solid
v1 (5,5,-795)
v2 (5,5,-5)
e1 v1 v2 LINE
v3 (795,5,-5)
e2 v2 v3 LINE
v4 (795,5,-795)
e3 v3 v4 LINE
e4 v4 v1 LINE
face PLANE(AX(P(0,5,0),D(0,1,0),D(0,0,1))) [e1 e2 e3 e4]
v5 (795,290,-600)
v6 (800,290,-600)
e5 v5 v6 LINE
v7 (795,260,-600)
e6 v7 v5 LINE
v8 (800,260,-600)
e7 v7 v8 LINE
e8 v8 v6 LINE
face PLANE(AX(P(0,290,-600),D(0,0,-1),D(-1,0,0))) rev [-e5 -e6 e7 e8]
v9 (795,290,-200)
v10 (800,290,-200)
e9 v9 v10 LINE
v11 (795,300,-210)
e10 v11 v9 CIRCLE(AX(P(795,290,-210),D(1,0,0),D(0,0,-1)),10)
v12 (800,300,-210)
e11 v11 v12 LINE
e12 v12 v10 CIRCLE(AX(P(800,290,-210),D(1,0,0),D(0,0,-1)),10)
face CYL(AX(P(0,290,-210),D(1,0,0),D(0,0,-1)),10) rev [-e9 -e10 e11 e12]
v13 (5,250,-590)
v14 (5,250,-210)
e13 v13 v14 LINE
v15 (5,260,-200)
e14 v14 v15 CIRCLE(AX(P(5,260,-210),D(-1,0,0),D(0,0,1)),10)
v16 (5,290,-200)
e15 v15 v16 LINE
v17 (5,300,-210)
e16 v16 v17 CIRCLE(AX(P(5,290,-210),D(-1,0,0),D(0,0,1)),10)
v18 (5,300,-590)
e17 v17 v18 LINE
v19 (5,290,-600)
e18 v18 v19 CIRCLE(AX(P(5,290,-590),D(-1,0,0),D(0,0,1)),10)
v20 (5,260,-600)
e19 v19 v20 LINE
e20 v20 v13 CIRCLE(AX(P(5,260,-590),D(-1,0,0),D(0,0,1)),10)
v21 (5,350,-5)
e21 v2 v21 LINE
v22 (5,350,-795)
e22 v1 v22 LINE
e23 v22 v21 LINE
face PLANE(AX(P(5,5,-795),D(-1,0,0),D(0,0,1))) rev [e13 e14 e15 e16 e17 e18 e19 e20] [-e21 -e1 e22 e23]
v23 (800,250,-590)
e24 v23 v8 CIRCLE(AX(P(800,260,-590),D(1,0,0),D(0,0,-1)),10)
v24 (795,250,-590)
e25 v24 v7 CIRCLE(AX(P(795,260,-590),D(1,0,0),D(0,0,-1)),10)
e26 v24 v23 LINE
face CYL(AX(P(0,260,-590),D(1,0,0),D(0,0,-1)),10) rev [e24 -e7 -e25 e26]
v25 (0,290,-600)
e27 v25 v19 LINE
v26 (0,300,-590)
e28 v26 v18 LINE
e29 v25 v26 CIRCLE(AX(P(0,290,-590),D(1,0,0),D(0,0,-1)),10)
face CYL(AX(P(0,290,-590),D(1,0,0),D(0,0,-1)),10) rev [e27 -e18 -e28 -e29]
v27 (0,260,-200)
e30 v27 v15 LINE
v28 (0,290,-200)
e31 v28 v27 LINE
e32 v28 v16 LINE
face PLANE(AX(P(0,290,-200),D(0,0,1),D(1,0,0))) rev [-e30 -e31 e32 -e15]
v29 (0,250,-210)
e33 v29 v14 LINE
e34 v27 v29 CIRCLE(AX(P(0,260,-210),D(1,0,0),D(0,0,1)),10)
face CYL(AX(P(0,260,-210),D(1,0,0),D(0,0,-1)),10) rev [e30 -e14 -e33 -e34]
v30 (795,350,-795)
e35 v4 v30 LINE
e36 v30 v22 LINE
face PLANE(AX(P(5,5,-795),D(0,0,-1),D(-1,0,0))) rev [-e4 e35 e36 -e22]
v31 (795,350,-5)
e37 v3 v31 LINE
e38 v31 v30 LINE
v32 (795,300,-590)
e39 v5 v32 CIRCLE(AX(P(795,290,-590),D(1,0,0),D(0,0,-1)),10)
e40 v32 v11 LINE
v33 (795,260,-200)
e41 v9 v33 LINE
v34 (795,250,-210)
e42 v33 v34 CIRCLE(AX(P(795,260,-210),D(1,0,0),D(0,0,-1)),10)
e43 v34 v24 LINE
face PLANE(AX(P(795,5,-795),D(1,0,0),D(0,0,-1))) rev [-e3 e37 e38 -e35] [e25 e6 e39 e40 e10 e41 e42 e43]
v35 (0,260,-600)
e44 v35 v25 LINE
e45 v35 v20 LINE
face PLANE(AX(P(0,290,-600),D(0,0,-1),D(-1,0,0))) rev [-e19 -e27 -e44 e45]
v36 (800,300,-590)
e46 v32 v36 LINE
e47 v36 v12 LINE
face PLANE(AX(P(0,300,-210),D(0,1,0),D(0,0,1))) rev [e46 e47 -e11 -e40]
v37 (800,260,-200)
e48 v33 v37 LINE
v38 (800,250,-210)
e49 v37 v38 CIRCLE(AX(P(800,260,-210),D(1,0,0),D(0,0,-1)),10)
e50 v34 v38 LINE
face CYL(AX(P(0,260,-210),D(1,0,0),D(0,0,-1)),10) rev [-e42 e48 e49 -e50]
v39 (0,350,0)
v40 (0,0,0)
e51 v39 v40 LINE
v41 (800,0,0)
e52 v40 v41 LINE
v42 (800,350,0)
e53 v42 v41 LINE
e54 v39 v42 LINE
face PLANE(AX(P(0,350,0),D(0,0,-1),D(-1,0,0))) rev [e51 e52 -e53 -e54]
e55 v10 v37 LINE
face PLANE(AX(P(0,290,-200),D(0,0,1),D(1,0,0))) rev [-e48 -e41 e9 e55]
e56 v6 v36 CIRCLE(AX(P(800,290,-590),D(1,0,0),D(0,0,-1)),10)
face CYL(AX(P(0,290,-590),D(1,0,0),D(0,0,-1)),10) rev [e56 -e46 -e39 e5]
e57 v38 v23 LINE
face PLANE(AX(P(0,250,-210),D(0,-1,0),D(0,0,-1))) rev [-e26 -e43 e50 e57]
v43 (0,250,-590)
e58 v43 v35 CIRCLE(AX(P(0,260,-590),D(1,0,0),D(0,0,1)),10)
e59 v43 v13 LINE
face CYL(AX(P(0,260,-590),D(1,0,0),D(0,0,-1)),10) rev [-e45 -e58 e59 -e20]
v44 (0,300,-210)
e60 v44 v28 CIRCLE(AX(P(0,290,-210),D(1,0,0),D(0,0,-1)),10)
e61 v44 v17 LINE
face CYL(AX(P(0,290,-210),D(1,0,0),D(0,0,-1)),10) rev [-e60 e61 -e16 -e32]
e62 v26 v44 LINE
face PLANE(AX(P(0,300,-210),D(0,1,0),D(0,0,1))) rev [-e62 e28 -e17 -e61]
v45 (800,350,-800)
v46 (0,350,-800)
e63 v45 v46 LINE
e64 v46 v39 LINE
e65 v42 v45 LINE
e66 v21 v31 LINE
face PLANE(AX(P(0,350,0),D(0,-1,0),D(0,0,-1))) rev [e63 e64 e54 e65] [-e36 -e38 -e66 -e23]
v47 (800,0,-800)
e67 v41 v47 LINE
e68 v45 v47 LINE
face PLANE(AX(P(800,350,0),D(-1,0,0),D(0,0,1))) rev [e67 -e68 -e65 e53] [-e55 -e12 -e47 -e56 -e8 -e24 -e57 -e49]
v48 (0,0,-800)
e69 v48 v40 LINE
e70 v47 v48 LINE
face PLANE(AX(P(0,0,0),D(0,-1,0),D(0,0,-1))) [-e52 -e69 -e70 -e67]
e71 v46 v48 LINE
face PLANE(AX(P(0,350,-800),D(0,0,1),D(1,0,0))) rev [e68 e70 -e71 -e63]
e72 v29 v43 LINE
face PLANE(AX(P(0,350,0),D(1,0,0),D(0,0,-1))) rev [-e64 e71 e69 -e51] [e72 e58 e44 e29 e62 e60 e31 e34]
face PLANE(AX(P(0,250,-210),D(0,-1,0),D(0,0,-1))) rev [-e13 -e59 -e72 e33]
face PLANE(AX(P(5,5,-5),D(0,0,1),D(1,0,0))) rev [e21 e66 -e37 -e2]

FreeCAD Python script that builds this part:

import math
import FreeCAD as App
import Part
import Sketcher
from FreeCAD import Vector

doc = App.newDocument("Part")
body = doc.addObject("PartDesign::Body", "Body")

sketch1 = body.newObject("Sketcher::SketchObject", "Sketch")
sketch1.AttachmentSupport = (doc.getObject("XZ_Plane"), [""])
sketch1.MapMode = "FlatFace"
sketch1.addGeometry(Part.LineSegment(Vector(0, -800, 0), Vector(0, 0, 0)), False)
sketch1.addGeometry(Part.LineSegment(Vector(0, 0, 0), Vector(800, 0, 0)), False)
sketch1.addGeometry(Part.LineSegment(Vector(800, 0, 0), Vector(800, -800, 0)), False)
sketch1.addGeometry(Part.LineSegment(Vector(800, -800, 0), Vector(0, -800, 0)), False)
sketch1.addConstraint(Sketcher.Constraint("Coincident", 0, 2, 1, 1))
sketch1.addConstraint(Sketcher.Constraint("Coincident", 1, 2, 2, 1))
sketch1.addConstraint(Sketcher.Constraint("Coincident", 2, 2, 3, 1))
sketch1.addConstraint(Sketcher.Constraint("Coincident", 3, 2, 0, 1))
sketch1.addConstraint(Sketcher.Constraint("Vertical", 0))
sketch1.addConstraint(Sketcher.Constraint("Horizontal", 1))
sketch1.addConstraint(Sketcher.Constraint("Vertical", 2))
sketch1.addConstraint(Sketcher.Constraint("Horizontal", 3))
sketch1.addConstraint(Sketcher.Constraint("Coincident", 0, 2, -1, 1))
sketch1.addConstraint(Sketcher.Constraint("Equal", 3, 0))
sketch1.addConstraint(Sketcher.Constraint("DistanceX", 1, 1, 1, 2, 800.0))
pad1 = body.newObject("PartDesign::Pad", "Pad")
pad1.Profile = sketch1
pad1.Length = 350
pad1.Reversed = True

sketch2 = body.newObject("Sketcher::SketchObject", "Sketch001")
sketch2.AttachmentSupport = (doc.getObject("XZ_Plane"), [""])
sketch2.MapMode = "FlatFace"
sketch2.AttachmentOffset = App.Placement(Vector(0, 0, -350), App.Rotation())
sketch2.addGeometry(Part.LineSegment(Vector(5, -795, 0), Vector(5, -5, 0)), False)
sketch2.addGeometry(Part.LineSegment(Vector(5, -5, 0), Vector(795, -5, 0)), False)
sketch2.addGeometry(Part.LineSegment(Vector(795, -5, 0), Vector(795, -795, 0)), False)
sketch2.addGeometry(Part.LineSegment(Vector(795, -795, 0), Vector(5, -795, 0)), False)
sketch2.addConstraint(Sketcher.Constraint("Coincident", 0, 2, 1, 1))
sketch2.addConstraint(Sketcher.Constraint("Coincident", 1, 2, 2, 1))
sketch2.addConstraint(Sketcher.Constraint("Coincident", 2, 2, 3, 1))
sketch2.addConstraint(Sketcher.Constraint("Coincident", 3, 2, 0, 1))
sketch2.addConstraint(Sketcher.Constraint("Vertical", 0))
sketch2.addConstraint(Sketcher.Constraint("Horizontal", 1))
sketch2.addConstraint(Sketcher.Constraint("Vertical", 2))
sketch2.addConstraint(Sketcher.Constraint("Horizontal", 3))
sketch2.addConstraint(Sketcher.Constraint("Equal", 3, 0))
sketch2.addConstraint(Sketcher.Constraint("DistanceX", 1, 1, 1, 2, 790.0))
sketch2.addConstraint(Sketcher.Constraint("DistanceX", -1, 1, 0, 2, 5.0))
sketch2.addConstraint(Sketcher.Constraint("DistanceY", 0, 2, -1, 1, 5.0))
pocket1 = body.newObject("PartDesign::Pocket", "Pocket")
pocket1.Profile = sketch2
pocket1.Length = 345
pocket1.Reversed = True

sketch3 = body.newObject("Sketcher::SketchObject", "Sketch002")
sketch3.AttachmentSupport = (doc.getObject("YZ_Plane"), [""])
sketch3.MapMode = "FlatFace"
sketch3.AttachmentOffset = App.Placement(Vector(0, 0, 800), App.Rotation())
sketch3.addGeometry(Part.LineSegment(Vector(300, -590, 0), Vector(300, -210, 0)), False)
sketch3.addGeometry(Part.ArcOfCircle(Part.Circle(Vector(290, -210, 0), Vector(0, 0, 1), 10), math.radians(0), math.radians(90)), False)
sketch3.addGeometry(Part.LineSegment(Vector(290, -200, 0), Vector(260, -200, 0)), False)
sketch3.addGeometry(Part.ArcOfCircle(Part.Circle(Vector(260, -210, 0), Vector(0, 0, 1), 10), math.radians(90), math.radians(180)), False)
sketch3.addGeometry(Part.LineSegment(Vector(250, -210, 0), Vector(250, -590, 0)), False)
sketch3.addGeometry(Part.ArcOfCircle(Part.Circle(Vector(260, -590, 0), Vector(0, 0, 1), 10), math.radians(180), math.radians(270)), False)
sketch3.addGeometry(Part.LineSegment(Vector(260, -600, 0), Vector(290, -600, 0)), False)
sketch3.addGeometry(Part.ArcOfCircle(Part.Circle(Vector(290, -590, 0), Vector(0, 0, 1), 10), math.radians(-90), math.radians(0)), False)
sketch3.addConstraint(Sketcher.Constraint("Tangent", 0, 2, 1, 1))
sketch3.addConstraint(Sketcher.Constraint("Tangent", 1, 2, 2, 1))
sketch3.addConstraint(Sketcher.Constraint("Tangent", 2, 2, 3, 1))
sketch3.addConstraint(Sketcher.Constraint("Tangent", 3, 2, 4, 1))
sketch3.addConstraint(Sketcher.Constraint("Tangent", 4, 2, 5, 1))
sketch3.addConstraint(Sketcher.Constraint("Tangent", 5, 2, 6, 1))
sketch3.addConstraint(Sketcher.Constraint("Tangent", 6, 2, 7, 1))
sketch3.addConstraint(Sketcher.Constraint("Tangent", 7, 2, 0, 1))
sketch3.addConstraint(Sketcher.Constraint("Vertical", 0))
sketch3.addConstraint(Sketcher.Constraint("Horizontal", 2))
sketch3.addConstraint(Sketcher.Constraint("Vertical", 4))
sketch3.addConstraint(Sketcher.Constraint("Horizontal", 6))
sketch3.addConstraint(Sketcher.Constraint("Equal", 1, 3))
sketch3.addConstraint(Sketcher.Constraint("Equal", 3, 5))
sketch3.addConstraint(Sketcher.Constraint("Equal", 5, 7))
sketch3.addConstraint(Sketcher.Constraint("Radius", 1, 10.0))
sketch3.addConstraint(Sketcher.Constraint("DistanceX", 2, 2, 2, 1, 30.0))
sketch3.addConstraint(Sketcher.Constraint("DistanceY", 0, 1, 0, 2, 380.0))
sketch3.addConstraint(Sketcher.Constraint("DistanceX", -1, 1, 1, 3, 290.0))
sketch3.addConstraint(Sketcher.Constraint("DistanceY", 1, 3, -1, 1, 210.0))
pocket2 = body.newObject("PartDesign::Pocket", "Pocket001")
pocket2.Profile = sketch3
pocket2.Type = "ThroughAll"
pocket2.Midplane = True

doc.recompute()
